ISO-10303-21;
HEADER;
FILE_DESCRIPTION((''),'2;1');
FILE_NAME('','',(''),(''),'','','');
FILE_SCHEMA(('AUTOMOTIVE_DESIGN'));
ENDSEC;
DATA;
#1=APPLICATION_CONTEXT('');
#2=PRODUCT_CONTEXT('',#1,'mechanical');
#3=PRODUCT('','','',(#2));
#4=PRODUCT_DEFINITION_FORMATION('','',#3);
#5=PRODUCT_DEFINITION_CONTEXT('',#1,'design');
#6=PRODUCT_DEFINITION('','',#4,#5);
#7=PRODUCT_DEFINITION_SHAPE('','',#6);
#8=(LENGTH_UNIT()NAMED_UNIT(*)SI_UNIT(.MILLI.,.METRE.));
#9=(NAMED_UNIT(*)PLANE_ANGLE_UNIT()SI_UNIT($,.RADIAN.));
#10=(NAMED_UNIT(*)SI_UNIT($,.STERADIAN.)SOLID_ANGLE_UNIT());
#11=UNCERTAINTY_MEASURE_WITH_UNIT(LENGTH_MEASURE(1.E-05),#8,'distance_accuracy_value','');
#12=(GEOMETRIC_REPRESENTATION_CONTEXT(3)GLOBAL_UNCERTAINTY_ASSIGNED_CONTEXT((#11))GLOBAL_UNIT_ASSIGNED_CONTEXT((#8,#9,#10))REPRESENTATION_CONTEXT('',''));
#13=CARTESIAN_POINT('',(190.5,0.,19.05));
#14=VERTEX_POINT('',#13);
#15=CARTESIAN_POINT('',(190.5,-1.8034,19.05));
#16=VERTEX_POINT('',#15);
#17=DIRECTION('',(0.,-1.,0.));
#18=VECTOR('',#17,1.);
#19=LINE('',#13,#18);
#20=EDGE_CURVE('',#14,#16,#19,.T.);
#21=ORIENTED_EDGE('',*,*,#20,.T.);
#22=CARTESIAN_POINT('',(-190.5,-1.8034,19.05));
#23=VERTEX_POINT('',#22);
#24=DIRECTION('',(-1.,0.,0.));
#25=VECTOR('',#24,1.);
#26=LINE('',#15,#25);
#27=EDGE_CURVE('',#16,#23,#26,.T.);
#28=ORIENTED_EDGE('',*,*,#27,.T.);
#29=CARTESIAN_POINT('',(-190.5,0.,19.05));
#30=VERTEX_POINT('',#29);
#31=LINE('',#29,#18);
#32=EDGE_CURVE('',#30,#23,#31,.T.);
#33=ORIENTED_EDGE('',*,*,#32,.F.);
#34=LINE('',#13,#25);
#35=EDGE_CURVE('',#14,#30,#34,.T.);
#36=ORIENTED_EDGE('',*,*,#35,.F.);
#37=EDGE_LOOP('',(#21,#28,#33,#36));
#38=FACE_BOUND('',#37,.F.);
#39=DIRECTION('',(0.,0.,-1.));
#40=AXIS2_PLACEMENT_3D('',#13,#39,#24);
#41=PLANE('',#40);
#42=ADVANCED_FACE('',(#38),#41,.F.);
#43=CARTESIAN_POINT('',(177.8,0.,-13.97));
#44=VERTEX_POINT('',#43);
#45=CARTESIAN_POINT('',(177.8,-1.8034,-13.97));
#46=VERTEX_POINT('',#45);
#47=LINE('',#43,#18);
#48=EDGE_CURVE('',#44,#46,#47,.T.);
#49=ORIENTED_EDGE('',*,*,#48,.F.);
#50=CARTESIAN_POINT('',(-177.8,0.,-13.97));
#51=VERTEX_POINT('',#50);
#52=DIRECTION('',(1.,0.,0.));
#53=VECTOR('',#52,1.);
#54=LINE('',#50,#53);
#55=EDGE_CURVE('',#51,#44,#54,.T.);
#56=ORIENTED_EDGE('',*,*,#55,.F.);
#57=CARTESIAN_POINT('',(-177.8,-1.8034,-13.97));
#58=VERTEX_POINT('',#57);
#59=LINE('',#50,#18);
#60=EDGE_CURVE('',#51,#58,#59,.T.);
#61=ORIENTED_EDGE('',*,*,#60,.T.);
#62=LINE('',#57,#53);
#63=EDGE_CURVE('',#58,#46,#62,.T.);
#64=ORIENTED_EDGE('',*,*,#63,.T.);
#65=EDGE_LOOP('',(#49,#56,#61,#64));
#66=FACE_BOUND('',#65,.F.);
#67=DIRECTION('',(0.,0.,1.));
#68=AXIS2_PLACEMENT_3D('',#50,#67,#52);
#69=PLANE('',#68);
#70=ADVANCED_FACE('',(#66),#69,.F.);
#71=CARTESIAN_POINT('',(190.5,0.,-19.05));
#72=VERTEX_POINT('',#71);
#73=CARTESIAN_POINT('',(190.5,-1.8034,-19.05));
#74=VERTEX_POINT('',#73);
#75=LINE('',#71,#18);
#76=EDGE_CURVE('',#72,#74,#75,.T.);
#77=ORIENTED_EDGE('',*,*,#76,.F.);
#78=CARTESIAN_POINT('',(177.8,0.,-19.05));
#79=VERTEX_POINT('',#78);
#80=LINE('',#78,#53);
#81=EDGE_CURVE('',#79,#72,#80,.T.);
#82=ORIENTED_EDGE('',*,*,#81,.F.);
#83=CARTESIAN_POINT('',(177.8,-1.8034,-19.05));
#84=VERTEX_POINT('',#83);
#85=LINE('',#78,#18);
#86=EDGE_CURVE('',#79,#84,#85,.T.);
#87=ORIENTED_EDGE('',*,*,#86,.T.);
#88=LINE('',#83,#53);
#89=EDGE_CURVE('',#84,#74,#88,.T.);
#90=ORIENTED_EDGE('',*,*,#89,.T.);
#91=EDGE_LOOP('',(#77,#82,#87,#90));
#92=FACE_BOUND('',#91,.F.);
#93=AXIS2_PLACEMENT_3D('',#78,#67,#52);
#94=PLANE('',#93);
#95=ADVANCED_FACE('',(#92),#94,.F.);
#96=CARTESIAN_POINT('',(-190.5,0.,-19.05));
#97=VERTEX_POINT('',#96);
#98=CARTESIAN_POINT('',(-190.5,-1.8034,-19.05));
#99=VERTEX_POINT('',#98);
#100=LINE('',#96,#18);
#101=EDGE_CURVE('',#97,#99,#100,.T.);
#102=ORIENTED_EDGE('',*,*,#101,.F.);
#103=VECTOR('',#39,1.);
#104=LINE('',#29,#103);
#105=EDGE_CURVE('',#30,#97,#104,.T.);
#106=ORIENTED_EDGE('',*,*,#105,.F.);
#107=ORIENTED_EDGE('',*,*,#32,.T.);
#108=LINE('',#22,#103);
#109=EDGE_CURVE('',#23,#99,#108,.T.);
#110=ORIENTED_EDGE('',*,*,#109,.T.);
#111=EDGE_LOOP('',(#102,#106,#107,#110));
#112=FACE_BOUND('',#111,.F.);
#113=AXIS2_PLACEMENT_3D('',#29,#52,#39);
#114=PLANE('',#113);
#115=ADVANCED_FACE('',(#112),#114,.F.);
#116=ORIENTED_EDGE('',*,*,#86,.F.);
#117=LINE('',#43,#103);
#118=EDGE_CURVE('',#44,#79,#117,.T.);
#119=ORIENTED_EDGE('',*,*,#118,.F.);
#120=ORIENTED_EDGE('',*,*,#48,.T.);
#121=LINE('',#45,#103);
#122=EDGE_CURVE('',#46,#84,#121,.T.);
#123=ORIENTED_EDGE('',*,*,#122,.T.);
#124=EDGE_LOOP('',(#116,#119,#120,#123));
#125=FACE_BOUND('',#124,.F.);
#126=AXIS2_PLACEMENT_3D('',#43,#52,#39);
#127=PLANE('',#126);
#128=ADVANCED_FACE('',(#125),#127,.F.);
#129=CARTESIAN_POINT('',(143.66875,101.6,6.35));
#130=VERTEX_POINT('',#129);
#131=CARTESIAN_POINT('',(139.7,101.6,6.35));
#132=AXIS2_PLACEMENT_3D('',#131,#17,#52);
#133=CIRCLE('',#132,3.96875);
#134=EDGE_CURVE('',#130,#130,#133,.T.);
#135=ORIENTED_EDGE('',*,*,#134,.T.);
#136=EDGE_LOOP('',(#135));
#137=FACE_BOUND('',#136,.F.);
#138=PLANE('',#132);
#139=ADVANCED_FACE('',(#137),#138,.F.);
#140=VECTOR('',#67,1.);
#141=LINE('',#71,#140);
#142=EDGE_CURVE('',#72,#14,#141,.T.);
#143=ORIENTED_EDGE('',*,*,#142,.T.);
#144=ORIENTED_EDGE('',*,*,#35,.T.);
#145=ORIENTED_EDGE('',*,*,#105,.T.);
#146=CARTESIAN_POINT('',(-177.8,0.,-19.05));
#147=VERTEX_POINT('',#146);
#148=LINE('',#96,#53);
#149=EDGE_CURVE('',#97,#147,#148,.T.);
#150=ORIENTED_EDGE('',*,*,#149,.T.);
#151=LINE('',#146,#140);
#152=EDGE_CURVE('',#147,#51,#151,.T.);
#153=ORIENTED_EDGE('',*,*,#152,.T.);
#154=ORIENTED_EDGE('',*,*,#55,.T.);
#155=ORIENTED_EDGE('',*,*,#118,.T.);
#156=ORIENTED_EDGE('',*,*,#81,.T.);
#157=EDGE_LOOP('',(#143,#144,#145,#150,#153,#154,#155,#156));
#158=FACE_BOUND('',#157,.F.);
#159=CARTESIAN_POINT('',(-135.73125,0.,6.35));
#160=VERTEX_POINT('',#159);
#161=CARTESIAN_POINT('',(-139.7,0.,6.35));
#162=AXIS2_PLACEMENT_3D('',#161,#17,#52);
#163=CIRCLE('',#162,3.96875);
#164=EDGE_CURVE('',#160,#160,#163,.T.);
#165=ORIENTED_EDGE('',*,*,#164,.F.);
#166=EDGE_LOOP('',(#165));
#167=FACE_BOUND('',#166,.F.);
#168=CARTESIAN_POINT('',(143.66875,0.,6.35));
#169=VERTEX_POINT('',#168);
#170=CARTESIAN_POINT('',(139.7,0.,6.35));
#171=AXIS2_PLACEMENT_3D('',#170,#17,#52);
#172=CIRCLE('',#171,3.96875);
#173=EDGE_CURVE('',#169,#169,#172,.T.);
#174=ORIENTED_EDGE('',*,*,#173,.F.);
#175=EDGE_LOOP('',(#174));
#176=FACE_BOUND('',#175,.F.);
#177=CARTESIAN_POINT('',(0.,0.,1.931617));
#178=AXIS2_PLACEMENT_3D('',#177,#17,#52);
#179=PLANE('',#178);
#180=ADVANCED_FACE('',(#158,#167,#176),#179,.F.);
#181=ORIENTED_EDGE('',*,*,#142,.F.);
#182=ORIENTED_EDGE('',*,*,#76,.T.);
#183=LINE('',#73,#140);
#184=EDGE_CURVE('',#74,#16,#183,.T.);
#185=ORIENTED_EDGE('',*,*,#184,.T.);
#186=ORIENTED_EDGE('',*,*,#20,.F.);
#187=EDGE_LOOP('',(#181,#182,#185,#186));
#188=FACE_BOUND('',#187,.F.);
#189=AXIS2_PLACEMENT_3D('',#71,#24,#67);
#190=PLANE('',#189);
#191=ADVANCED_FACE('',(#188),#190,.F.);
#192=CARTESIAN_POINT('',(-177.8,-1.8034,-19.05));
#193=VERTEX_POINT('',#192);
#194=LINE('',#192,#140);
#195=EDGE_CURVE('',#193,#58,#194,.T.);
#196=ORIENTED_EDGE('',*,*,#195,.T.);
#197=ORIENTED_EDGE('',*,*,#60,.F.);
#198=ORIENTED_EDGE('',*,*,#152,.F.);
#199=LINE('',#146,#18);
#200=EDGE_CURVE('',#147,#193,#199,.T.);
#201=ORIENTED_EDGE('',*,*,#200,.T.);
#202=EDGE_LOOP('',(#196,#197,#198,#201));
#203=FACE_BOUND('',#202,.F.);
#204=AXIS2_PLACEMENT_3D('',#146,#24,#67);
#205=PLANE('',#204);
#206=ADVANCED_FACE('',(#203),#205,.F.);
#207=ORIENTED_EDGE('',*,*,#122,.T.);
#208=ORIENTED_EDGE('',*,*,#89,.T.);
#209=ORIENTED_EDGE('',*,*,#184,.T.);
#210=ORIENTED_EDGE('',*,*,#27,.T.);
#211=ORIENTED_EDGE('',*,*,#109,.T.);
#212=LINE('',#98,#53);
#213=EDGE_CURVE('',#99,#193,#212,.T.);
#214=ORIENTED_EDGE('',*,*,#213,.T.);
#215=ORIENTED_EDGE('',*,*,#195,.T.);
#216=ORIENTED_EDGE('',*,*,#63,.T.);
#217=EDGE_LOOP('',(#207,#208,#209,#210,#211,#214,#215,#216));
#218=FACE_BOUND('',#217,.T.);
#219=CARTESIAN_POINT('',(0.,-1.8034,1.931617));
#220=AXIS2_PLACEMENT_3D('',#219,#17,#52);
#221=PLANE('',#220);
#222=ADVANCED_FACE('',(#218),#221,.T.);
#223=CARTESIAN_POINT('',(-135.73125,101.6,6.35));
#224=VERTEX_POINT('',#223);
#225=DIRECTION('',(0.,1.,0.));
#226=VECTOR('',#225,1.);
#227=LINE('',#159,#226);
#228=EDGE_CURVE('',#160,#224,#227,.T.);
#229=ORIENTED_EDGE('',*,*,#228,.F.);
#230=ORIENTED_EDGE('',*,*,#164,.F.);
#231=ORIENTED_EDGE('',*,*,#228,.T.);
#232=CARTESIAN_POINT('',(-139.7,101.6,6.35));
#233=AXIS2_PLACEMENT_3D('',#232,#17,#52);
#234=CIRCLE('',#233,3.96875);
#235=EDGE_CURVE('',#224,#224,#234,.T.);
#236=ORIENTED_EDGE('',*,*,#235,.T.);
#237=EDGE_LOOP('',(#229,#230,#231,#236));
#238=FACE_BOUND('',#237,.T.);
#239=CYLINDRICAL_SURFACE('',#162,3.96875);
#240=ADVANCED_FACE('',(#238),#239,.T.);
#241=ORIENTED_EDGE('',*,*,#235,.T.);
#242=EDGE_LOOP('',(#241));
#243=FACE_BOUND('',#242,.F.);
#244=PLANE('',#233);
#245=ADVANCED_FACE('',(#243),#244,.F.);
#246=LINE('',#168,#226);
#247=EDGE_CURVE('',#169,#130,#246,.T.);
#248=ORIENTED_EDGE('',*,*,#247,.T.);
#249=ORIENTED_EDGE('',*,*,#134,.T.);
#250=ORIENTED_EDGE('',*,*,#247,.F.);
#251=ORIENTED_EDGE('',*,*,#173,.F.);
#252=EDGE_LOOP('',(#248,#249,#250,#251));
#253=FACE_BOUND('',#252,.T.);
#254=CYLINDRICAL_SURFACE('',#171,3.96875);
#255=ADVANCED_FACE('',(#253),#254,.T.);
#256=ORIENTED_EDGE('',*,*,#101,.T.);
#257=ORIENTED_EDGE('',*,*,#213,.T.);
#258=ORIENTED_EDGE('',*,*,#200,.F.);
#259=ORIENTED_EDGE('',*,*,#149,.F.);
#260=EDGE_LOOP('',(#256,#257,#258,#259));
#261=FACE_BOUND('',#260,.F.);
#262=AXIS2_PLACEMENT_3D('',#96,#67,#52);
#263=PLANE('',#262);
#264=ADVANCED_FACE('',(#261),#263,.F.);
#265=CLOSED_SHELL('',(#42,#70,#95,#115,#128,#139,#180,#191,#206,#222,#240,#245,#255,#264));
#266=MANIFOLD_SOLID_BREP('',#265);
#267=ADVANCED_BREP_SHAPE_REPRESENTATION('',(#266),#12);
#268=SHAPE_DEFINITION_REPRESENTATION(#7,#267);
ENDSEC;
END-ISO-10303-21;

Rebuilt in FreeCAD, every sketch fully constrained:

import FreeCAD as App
import Part
import Sketcher

V = App.Vector
Q = App.Units.Quantity


def add_polygon(sketch, points):
    """Adds a closed chain of lines whose ends are joined by coincident constraints."""
    first, n = sketch.GeometryCount, len(points)
    for a, b in zip(points, points[1:] + points[:1]):
        sketch.addGeometry(Part.LineSegment(App.Vector(*a, 0), App.Vector(*b, 0)), False)
    for i in range(n):
        sketch.addConstraint(Sketcher.Constraint("Coincident", first + i, 2, first + (i + 1) % n, 1))

doc = App.newDocument("Part")
body = doc.addObject("PartDesign::Body", "Body")

# Sketch on XZ plane
sketch1 = body.newObject("Sketcher::SketchObject", "Sketch")
sketch1.AttachmentSupport = (doc.getObject("XZ_Plane"), [""])
sketch1.MapMode = "FlatFace"
add_polygon(sketch1, [(190, -19), (190, 19), (-190, 19), (-190, -19), (-178, -19), (-178, -14), (178, -14), (178, -19)])  # lines 0-7
sketch1.addConstraint(Sketcher.Constraint("Vertical", 0))
sketch1.addConstraint(Sketcher.Constraint("Horizontal", 1))
sketch1.addConstraint(Sketcher.Constraint("Vertical", 2))
sketch1.addConstraint(Sketcher.Constraint("Horizontal", 3))
sketch1.addConstraint(Sketcher.Constraint("Vertical", 4))
sketch1.addConstraint(Sketcher.Constraint("Horizontal", 5))
sketch1.addConstraint(Sketcher.Constraint("Vertical", 6))
sketch1.addConstraint(Sketcher.Constraint("Horizontal", 7))
sketch1.addConstraint(Sketcher.Constraint("Symmetric", 0, 2, 2, 2, -1, 1))
sketch1.addConstraint(Sketcher.Constraint("Symmetric", 3, 2, 6, 2, -2))
sketch1.addConstraint(Sketcher.Constraint("DistanceX", 1, 2, 1, 1, Q("15 in")))
sketch1.addConstraint(Sketcher.Constraint("DistanceX", 5, 1, 5, 2, Q("14 in")))
sketch1.addConstraint(Sketcher.Constraint("DistanceY", 0, 1, 0, 2, Q("1.5 in")))
sketch1.addConstraint(Sketcher.Constraint("DistanceY", 4, 1, 4, 2, Q("0.2 in")))
pad1 = body.newObject("PartDesign::Pad", "Pad")
pad1.Profile = sketch1
pad1.Length = Q("0.071 in")

# Sketch on XZ plane
sketch2 = body.newObject("Sketcher::SketchObject", "Sketch001")
sketch2.AttachmentSupport = (doc.getObject("XZ_Plane"), [""])
sketch2.MapMode = "FlatFace"
sketch2.addGeometry(Part.Circle(V(-139.7, 6.3, 0), V(0, 0, 1), 4), False)
sketch2.addGeometry(Part.Circle(V(139.7, 6.3, 0), V(0, 0, 1), 4), False)
sketch2.addConstraint(Sketcher.Constraint("Equal", 0, 1))
sketch2.addConstraint(Sketcher.Constraint("Symmetric", 0, 3, 1, 3, -2))
sketch2.addConstraint(Sketcher.Constraint("Diameter", 0, Q("0.3125 in")))
sketch2.addConstraint(Sketcher.Constraint("DistanceX", 0, 3, 1, 3, Q("11 in")))
sketch2.addConstraint(Sketcher.Constraint("DistanceY", -1, 1, 0, 3, Q("0.25 in")))
pad2 = body.newObject("PartDesign::Pad", "Pad001")
pad2.Profile = sketch2
pad2.Length = Q("4 in")
pad2.Reversed = True

doc.recompute()
